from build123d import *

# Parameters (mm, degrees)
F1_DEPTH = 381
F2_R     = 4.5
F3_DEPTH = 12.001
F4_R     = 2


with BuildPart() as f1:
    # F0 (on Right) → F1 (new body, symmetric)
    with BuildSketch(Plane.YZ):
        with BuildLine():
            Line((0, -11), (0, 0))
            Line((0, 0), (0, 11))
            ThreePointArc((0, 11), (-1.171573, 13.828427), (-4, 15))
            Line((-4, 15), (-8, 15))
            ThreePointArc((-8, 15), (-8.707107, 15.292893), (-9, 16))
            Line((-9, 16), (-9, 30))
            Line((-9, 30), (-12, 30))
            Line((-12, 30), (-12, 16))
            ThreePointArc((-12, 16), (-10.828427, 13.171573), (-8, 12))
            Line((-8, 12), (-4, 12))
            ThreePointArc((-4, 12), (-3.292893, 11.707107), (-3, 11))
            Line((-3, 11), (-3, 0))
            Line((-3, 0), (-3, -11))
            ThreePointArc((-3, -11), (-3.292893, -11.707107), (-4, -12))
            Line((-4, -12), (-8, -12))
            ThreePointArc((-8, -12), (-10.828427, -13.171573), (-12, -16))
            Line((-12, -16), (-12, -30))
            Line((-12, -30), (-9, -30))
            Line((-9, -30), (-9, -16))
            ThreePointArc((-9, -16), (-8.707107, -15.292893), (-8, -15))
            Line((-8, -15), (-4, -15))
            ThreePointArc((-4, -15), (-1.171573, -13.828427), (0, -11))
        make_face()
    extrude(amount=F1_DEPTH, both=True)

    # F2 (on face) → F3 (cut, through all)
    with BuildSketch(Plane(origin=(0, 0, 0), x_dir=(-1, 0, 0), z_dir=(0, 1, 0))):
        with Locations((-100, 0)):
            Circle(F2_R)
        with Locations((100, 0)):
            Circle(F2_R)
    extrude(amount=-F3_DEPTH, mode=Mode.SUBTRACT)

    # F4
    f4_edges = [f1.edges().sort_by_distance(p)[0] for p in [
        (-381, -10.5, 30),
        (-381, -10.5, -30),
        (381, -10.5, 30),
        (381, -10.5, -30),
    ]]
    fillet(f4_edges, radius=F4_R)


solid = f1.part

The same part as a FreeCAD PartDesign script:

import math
import FreeCAD as App
import Part
import Sketcher

V = App.Vector
Q = App.Units.Quantity


def edges_at(feature, points):
    """Names of the edges that pass closest to the given points."""
    edges = feature.Shape.Edges
    near = lambda p: min(range(len(edges)), key=lambda i: edges[i].distToShape(Part.Vertex(*p))[0])
    return sorted({f"Edge{near(p) + 1}" for p in points})

doc = App.newDocument("Part")
body = doc.addObject("PartDesign::Body", "Body")

# Sketch on YZ plane
sketch1 = body.newObject("Sketcher::SketchObject", "Sketch")
sketch1.AttachmentSupport = (doc.getObject("YZ_Plane"), [""])
sketch1.MapMode = "FlatFace"
sketch1.addGeometry([
    Part.LineSegment(V(0, -11, 0), V(0, 11, 0)),  # 0
    Part.ArcOfCircle(Part.Circle(V(-4, 11, 0), V(0, 0, 1), 4), math.radians(0.000006), math.radians(89.999994)),  # 1
    Part.LineSegment(V(-4, 15, 0), V(-8, 15, 0)),  # 2
    Part.ArcOfCircle(Part.Circle(V(-8.000001, 15.999999, 0), V(0, 0, 1), 0.999999), math.radians(179.999957), math.radians(270.000043)),  # 3
    Part.LineSegment(V(-9, 16, 0), V(-9, 30, 0)),  # 4
    Part.LineSegment(V(-9, 30, 0), V(-12, 30, 0)),  # 5
    Part.LineSegment(V(-12, 30, 0), V(-12, 16, 0)),  # 6
    Part.ArcOfCircle(Part.Circle(V(-8, 16, 0), V(0, 0, 1), 4), math.radians(-179.999994), math.radians(-90.000006)),  # 7
    Part.LineSegment(V(-8, 12, 0), V(-4, 12, 0)),  # 8
    Part.ArcOfCircle(Part.Circle(V(-3.999999, 11.000001, 0), V(0, 0, 1), 0.999999), math.radians(-0.000043), math.radians(90.000043)),  # 9
    Part.LineSegment(V(-3, 11, 0), V(-3, -11, 0)),  # 10
    Part.ArcOfCircle(Part.Circle(V(-3.999999, -11.000001, 0), V(0, 0, 1), 0.999999), math.radians(-90.000043), math.radians(0.000043)),  # 11
    Part.LineSegment(V(-4, -12, 0), V(-8, -12, 0)),  # 12
    Part.ArcOfCircle(Part.Circle(V(-8, -16, 0), V(0, 0, 1), 4), math.radians(90.000006), math.radians(179.999994)),  # 13
    Part.LineSegment(V(-12, -16, 0), V(-12, -30, 0)),  # 14
    Part.LineSegment(V(-12, -30, 0), V(-9, -30, 0)),  # 15
    Part.LineSegment(V(-9, -30, 0), V(-9, -16, 0)),  # 16
    Part.ArcOfCircle(Part.Circle(V(-8.000001, -15.999999, 0), V(0, 0, 1), 0.999999), math.radians(89.999957), math.radians(180.000043)),  # 17
    Part.LineSegment(V(-8, -15, 0), V(-4, -15, 0)),  # 18
    Part.ArcOfCircle(Part.Circle(V(-4, -11, 0), V(0, 0, 1), 4), math.radians(-89.999994), math.radians(-0.000006)),  # 19
], False)
sketch1.addConstraint([
    Sketcher.Constraint("Tangent", 0, 2, 1, 1),
    Sketcher.Constraint("Tangent", 1, 2, 2, 1),
    Sketcher.Constraint("Tangent", 2, 2, 3, 2),
    Sketcher.Constraint("Tangent", 3, 1, 4, 1),
    Sketcher.Constraint("Coincident", 4, 2, 5, 1),
    Sketcher.Constraint("Coincident", 5, 2, 6, 1),
    Sketcher.Constraint("Tangent", 6, 2, 7, 1),
    Sketcher.Constraint("Tangent", 7, 2, 8, 1),
    Sketcher.Constraint("Tangent", 8, 2, 9, 2),
    Sketcher.Constraint("Tangent", 9, 1, 10, 1),
    Sketcher.Constraint("Tangent", 10, 2, 11, 2),
    Sketcher.Constraint("Tangent", 11, 1, 12, 1),
    Sketcher.Constraint("Tangent", 12, 2, 13, 1),
    Sketcher.Constraint("Tangent", 13, 2, 14, 1),
    Sketcher.Constraint("Coincident", 14, 2, 15, 1),
    Sketcher.Constraint("Coincident", 15, 2, 16, 1),
    Sketcher.Constraint("Tangent", 16, 2, 17, 2),
    Sketcher.Constraint("Tangent", 17, 1, 18, 1),
    Sketcher.Constraint("Tangent", 18, 2, 19, 1),
    Sketcher.Constraint("Tangent", 19, 2, 0, 1),
    Sketcher.Constraint("Vertical", 0),
    Sketcher.Constraint("Horizontal", 2),
    Sketcher.Constraint("Vertical", 4),
    Sketcher.Constraint("Horizontal", 5),
    Sketcher.Constraint("Vertical", 6),
    Sketcher.Constraint("Horizontal", 8),
    Sketcher.Constraint("Vertical", 10),
    Sketcher.Constraint("Horizontal", 12),
    Sketcher.Constraint("Vertical", 14),
    Sketcher.Constraint("Horizontal", 15),
    Sketcher.Constraint("Vertical", 16),
    Sketcher.Constraint("Horizontal", 18),
    Sketcher.Constraint("Coincident", 7, 3, 3, 3),
    Sketcher.Constraint("Coincident", 9, 3, 1, 3),
    Sketcher.Constraint("Coincident", 17, 3, 13, 3),
    Sketcher.Constraint("Coincident", 19, 3, 11, 3),
    Sketcher.Constraint("Equal", 1, 7),
    Sketcher.Constraint("Equal", 9, 11),
    Sketcher.Constraint("Equal", 7, 13),
    Sketcher.Constraint("Symmetric", 0, 2, 19, 2, -1, 1),
    Sketcher.Constraint("Symmetric", 5, 2, 14, 2, -1),
    Sketcher.Constraint("Radius", 1, Q("4 mm")),
    Sketcher.Constraint("Radius", 3, Q("0.999999 mm")),
    Sketcher.Constraint("DistanceX", 2, 2, 2, 1, Q("4 mm")),
    Sketcher.Constraint("DistanceY", 0, 1, 0, 2, Q("22 mm")),
    Sketcher.Constraint("DistanceY", 4, 1, 4, 2, Q("14 mm")),
])
pad1 = body.newObject("PartDesign::Pad", "Pad")
pad1.Profile = sketch1
pad1.Length = 762
pad1.Midplane = True

# Sketch on XZ plane
sketch2 = body.newObject("Sketcher::SketchObject", "Sketch001")
sketch2.AttachmentSupport = (doc.getObject("XZ_Plane"), [""])
sketch2.MapMode = "FlatFace"
sketch2.addGeometry([
    Part.Circle(V(100, 0, 0), V(0, 0, 1), 4.5),
    Part.Circle(V(-100, 0, 0), V(0, 0, 1), 4.5),
], False)
sketch2.addConstraint([
    Sketcher.Constraint("Equal", 0, 1),
    Sketcher.Constraint("Symmetric", 0, 3, 1, 3, -1, 1),
    Sketcher.Constraint("PointOnObject", 0, 3, -1),
    Sketcher.Constraint("Diameter", 0, Q("9 mm")),
    Sketcher.Constraint("DistanceX", -1, 1, 0, 3, Q("100 mm")),
])
pocket1 = body.newObject("PartDesign::Pocket", "Pocket")
pocket1.Profile = sketch2
pocket1.Type = "ThroughAll"
pocket1.Reversed = True
doc.recompute()

fillet = body.newObject("PartDesign::Fillet", "Fillet")
fillet.Base = (pocket1, edges_at(pocket1, [
    (-381, -10.5, 30),
    (-381, -10.5, -30),
    (381, -10.5, 30),
    (381, -10.5, -30),
]))
fillet.Radius = 2

doc.recompute()
